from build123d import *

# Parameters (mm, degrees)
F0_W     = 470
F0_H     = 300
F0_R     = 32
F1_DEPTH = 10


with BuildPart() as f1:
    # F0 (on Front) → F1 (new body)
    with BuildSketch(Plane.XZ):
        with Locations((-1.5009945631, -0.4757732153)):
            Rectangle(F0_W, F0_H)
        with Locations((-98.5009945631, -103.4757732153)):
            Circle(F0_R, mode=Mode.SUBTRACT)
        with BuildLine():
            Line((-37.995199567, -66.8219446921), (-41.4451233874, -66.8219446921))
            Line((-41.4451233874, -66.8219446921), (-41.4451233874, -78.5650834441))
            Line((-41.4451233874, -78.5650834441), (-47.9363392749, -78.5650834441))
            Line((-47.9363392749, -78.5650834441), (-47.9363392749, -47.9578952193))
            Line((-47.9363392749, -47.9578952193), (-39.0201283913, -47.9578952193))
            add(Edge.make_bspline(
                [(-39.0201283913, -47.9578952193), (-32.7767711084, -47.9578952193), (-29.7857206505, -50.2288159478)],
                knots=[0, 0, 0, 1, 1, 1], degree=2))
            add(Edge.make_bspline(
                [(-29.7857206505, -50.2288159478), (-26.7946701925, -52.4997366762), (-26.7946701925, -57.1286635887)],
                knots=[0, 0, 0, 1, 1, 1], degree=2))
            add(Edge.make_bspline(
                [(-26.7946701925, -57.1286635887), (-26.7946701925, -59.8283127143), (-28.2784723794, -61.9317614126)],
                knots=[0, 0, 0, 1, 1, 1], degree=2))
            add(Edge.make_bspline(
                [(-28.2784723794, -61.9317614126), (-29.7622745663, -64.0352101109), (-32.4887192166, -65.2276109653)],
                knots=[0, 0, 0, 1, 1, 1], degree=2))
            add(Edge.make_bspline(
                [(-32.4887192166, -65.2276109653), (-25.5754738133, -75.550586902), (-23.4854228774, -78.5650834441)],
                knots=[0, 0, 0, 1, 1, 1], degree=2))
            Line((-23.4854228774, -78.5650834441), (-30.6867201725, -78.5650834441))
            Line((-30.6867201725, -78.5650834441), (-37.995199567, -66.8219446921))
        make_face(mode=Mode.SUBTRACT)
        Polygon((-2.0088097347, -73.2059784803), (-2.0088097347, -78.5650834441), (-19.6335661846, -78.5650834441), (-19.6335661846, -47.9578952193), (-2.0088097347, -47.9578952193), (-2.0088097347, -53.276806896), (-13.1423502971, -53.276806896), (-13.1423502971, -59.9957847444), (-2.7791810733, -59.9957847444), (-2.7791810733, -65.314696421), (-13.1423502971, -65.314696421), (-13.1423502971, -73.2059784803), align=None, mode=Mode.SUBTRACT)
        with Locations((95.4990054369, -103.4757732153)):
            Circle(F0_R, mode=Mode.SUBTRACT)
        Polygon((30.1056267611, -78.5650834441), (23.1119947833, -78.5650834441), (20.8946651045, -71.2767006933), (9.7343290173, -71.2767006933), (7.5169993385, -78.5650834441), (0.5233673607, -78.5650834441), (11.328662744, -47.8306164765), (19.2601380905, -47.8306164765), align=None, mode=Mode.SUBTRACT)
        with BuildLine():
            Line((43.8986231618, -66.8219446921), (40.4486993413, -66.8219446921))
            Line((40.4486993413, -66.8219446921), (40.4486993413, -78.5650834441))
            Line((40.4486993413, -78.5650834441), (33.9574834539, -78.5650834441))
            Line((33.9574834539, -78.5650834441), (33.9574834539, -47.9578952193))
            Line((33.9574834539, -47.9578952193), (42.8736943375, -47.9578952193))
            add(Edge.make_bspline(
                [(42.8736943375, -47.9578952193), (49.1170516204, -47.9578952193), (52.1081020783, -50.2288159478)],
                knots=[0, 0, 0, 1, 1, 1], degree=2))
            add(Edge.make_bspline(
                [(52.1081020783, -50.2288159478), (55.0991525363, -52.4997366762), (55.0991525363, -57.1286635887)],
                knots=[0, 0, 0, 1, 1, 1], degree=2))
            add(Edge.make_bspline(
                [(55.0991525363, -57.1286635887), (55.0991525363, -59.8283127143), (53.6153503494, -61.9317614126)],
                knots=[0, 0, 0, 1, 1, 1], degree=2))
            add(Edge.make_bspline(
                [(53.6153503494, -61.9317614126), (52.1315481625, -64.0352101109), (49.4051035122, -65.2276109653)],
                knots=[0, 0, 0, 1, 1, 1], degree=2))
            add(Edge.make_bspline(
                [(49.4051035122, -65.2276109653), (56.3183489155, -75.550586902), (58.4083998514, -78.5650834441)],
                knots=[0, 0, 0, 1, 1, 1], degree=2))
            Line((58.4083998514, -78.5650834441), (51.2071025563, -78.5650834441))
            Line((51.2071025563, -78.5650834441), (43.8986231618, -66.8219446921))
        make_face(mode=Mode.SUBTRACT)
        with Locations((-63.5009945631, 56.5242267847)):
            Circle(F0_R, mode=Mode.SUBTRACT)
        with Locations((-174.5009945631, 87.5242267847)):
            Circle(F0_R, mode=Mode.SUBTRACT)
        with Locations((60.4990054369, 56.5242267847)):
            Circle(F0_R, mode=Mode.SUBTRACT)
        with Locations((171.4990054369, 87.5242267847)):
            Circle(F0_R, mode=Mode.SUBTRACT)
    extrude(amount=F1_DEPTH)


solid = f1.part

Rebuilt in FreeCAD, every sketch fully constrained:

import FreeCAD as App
import Part
import Sketcher
from FreeCAD import Vector

doc = App.newDocument("Part")
params = doc.addObject("Spreadsheet::Sheet", "Params")
for row, (alias, value) in enumerate([
    ("sketch1_diameter", "64 mm"),
    ("sketch1_width", "470 mm"),
    ("sketch1_height", "300 mm"),
    ("pad1_length", "10 mm"),
], start=1):
    params.set(f"A{row}", alias)
    params.set(f"B{row}", "=" + value)
    params.setAlias(f"B{row}", alias)

body = doc.addObject("PartDesign::Body", "Body")

sketch1 = doc.addObject("Sketcher::SketchObject", "Sketch")
body.addObject(sketch1)
sketch1.AttachmentSupport = (doc.XZ_Plane, [""])
sketch1.MapMode = "FlatFace"
sketch1.addGeometry([
    Part.LineSegment(Vector(-236.500995, 149.524227, 0), Vector(-236.500995, -150.475773, 0)),
    Part.LineSegment(Vector(-236.500995, -150.475773, 0), Vector(233.499005, -150.475773, 0)),
    Part.LineSegment(Vector(233.499005, -150.475773, 0), Vector(233.499005, 149.524227, 0)),
    Part.LineSegment(Vector(233.499005, 149.524227, 0), Vector(-236.500995, 149.524227, 0)),
    Part.Circle(Vector(-98.500995, -103.475773, 0), Vector(0, 0, 1), 32),
    Part.LineSegment(Vector(-30.68672, -78.565083, 0), Vector(-37.9952, -66.821945, 0)),
    Part.LineSegment(Vector(-37.9952, -66.821945, 0), Vector(-41.445123, -66.821945, 0)),
    Part.LineSegment(Vector(-41.445123, -66.821945, 0), Vector(-41.445123, -78.565083, 0)),
    Part.LineSegment(Vector(-41.445123, -78.565083, 0), Vector(-47.936339, -78.565083, 0)),
    Part.LineSegment(Vector(-47.936339, -78.565083, 0), Vector(-47.936339, -47.957895, 0)),
    Part.LineSegment(Vector(-47.936339, -47.957895, 0), Vector(-39.020128, -47.957895, 0)),
    Part.BSplineCurve([Vector(-39.020128, -47.957895, 0), Vector(-32.776771, -47.957895, 0), Vector(-29.785721, -50.228816, 0)], [3, 3], [0, 1], False, 2, [1, 1, 1], False),
    Part.BSplineCurve([Vector(-29.785721, -50.228816, 0), Vector(-26.79467, -52.499737, 0), Vector(-26.79467, -59.828313, 0), Vector(-29.762275, -64.03521, 0), Vector(-32.488719, -65.227611, 0)], [3, 1, 1, 3], [0, 1, 1.583212735, 2.16642547], False, 2, [1, 1, 1, 1, 1], False),
    Part.BSplineCurve([Vector(-32.488719, -65.227611, 0), Vector(-25.575474, -75.550587, 0), Vector(-23.485423, -78.565083, 0)], [3, 3], [0, 1], False, 2, [1, 1, 1], False),
    Part.LineSegment(Vector(-23.485423, -78.565083, 0), Vector(-30.68672, -78.565083, 0)),
    Part.LineSegment(Vector(-13.14235, -73.205978, 0), Vector(-2.00881, -73.205978, 0)),
    Part.LineSegment(Vector(-2.00881, -73.205978, 0), Vector(-2.00881, -78.565083, 0)),
    Part.LineSegment(Vector(-2.00881, -78.565083, 0), Vector(-19.633566, -78.565083, 0)),
    Part.LineSegment(Vector(-19.633566, -78.565083, 0), Vector(-19.633566, -47.957895, 0)),
    Part.LineSegment(Vector(-19.633566, -47.957895, 0), Vector(-2.00881, -47.957895, 0)),
    Part.LineSegment(Vector(-2.00881, -47.957895, 0), Vector(-2.00881, -53.276807, 0)),
    Part.LineSegment(Vector(-2.00881, -53.276807, 0), Vector(-13.14235, -53.276807, 0)),
    Part.LineSegment(Vector(-13.14235, -53.276807, 0), Vector(-13.14235, -59.995785, 0)),
    Part.LineSegment(Vector(-13.14235, -59.995785, 0), Vector(-2.779181, -59.995785, 0)),
    Part.LineSegment(Vector(-2.779181, -59.995785, 0), Vector(-2.779181, -65.314696, 0)),
    Part.LineSegment(Vector(-2.779181, -65.314696, 0), Vector(-13.14235, -65.314696, 0)),
    Part.LineSegment(Vector(-13.14235, -65.314696, 0), Vector(-13.14235, -73.205978, 0)),
    Part.Circle(Vector(95.499005, -103.475773, 0), Vector(0, 0, 1), 32),
    Part.LineSegment(Vector(19.260138, -47.830616, 0), Vector(30.105627, -78.565083, 0)),
    Part.LineSegment(Vector(30.105627, -78.565083, 0), Vector(23.111995, -78.565083, 0)),
    Part.LineSegment(Vector(23.111995, -78.565083, 0), Vector(20.894665, -71.276701, 0)),
    Part.LineSegment(Vector(20.894665, -71.276701, 0), Vector(9.734329, -71.276701, 0)),
    Part.LineSegment(Vector(9.734329, -71.276701, 0), Vector(7.516999, -78.565083, 0)),
    Part.LineSegment(Vector(7.516999, -78.565083, 0), Vector(0.523367, -78.565083, 0)),
    Part.LineSegment(Vector(0.523367, -78.565083, 0), Vector(11.328663, -47.830616, 0)),
    Part.LineSegment(Vector(11.328663, -47.830616, 0), Vector(19.260138, -47.830616, 0)),
    Part.LineSegment(Vector(51.207103, -78.565083, 0), Vector(43.898623, -66.821945, 0)),
    Part.LineSegment(Vector(43.898623, -66.821945, 0), Vector(40.448699, -66.821945, 0)),
    Part.LineSegment(Vector(40.448699, -66.821945, 0), Vector(40.448699, -78.565083, 0)),
    Part.LineSegment(Vector(40.448699, -78.565083, 0), Vector(33.957483, -78.565083, 0)),
    Part.LineSegment(Vector(33.957483, -78.565083, 0), Vector(33.957483, -47.957895, 0)),
    Part.LineSegment(Vector(33.957483, -47.957895, 0), Vector(42.873694, -47.957895, 0)),
    Part.BSplineCurve([Vector(42.873694, -47.957895, 0), Vector(49.117052, -47.957895, 0), Vector(52.108102, -50.228816, 0)], [3, 3], [0, 1], False, 2, [1, 1, 1], False),
    Part.BSplineCurve([Vector(52.108102, -50.228816, 0), Vector(55.099153, -52.499737, 0), Vector(55.099153, -59.828313, 0), Vector(52.131548, -64.03521, 0), Vector(49.405104, -65.227611, 0)], [3, 1, 1, 3], [0, 1, 1.583212735, 2.16642547], False, 2, [1, 1, 1, 1, 1], False),
    Part.BSplineCurve([Vector(49.405104, -65.227611, 0), Vector(56.318349, -75.550587, 0), Vector(58.4084, -78.565083, 0)], [3, 3], [0, 1], False, 2, [1, 1, 1], False),
    Part.LineSegment(Vector(58.4084, -78.565083, 0), Vector(51.207103, -78.565083, 0)),
    Part.Circle(Vector(-174.500995, 87.524227, 0), Vector(0, 0, 1), 32),
    Part.Circle(Vector(-63.500995, 56.524227, 0), Vector(0, 0, 1), 32),
    Part.Circle(Vector(60.499005, 56.524227, 0), Vector(0, 0, 1), 32),
    Part.Circle(Vector(171.499005, 87.524227, 0), Vector(0, 0, 1), 32),
], False)
sketch1.addConstraint([
    Sketcher.Constraint("Block", 11),
    Sketcher.Constraint("Block", 12),
    Sketcher.Constraint("Block", 13),
    Sketcher.Constraint("Block", 42),
    Sketcher.Constraint("Block", 43),
    Sketcher.Constraint("Block", 44),
    Sketcher.Constraint("Coincident", 0, 2, 1, 1),
    Sketcher.Constraint("Coincident", 1, 2, 2, 1),
    Sketcher.Constraint("Coincident", 2, 2, 3, 1),
    Sketcher.Constraint("Coincident", 3, 2, 0, 1),
    Sketcher.Constraint("Coincident", 5, 2, 6, 1),
    Sketcher.Constraint("Coincident", 6, 2, 7, 1),
    Sketcher.Constraint("Coincident", 7, 2, 8, 1),
    Sketcher.Constraint("Coincident", 8, 2, 9, 1),
    Sketcher.Constraint("Coincident", 9, 2, 10, 1),
    Sketcher.Constraint("Coincident", 10, 2, 11, 1),
    Sketcher.Constraint("Coincident", 13, 2, 14, 1),
    Sketcher.Constraint("Coincident", 14, 2, 5, 1),
    Sketcher.Constraint("Coincident", 15, 2, 16, 1),
    Sketcher.Constraint("Coincident", 16, 2, 17, 1),
    Sketcher.Constraint("Coincident", 17, 2, 18, 1),
    Sketcher.Constraint("Coincident", 18, 2, 19, 1),
    Sketcher.Constraint("Coincident", 19, 2, 20, 1),
    Sketcher.Constraint("Coincident", 20, 2, 21, 1),
    Sketcher.Constraint("Coincident", 21, 2, 22, 1),
    Sketcher.Constraint("Coincident", 22, 2, 23, 1),
    Sketcher.Constraint("Coincident", 23, 2, 24, 1),
    Sketcher.Constraint("Coincident", 24, 2, 25, 1),
    Sketcher.Constraint("Coincident", 25, 2, 26, 1),
    Sketcher.Constraint("Coincident", 26, 2, 15, 1),
    Sketcher.Constraint("Coincident", 28, 2, 29, 1),
    Sketcher.Constraint("Coincident", 29, 2, 30, 1),
    Sketcher.Constraint("Coincident", 30, 2, 31, 1),
    Sketcher.Constraint("Coincident", 31, 2, 32, 1),
    Sketcher.Constraint("Coincident", 32, 2, 33, 1),
    Sketcher.Constraint("Coincident", 33, 2, 34, 1),
    Sketcher.Constraint("Coincident", 34, 2, 35, 1),
    Sketcher.Constraint("Coincident", 35, 2, 28, 1),
    Sketcher.Constraint("Coincident", 36, 2, 37, 1),
    Sketcher.Constraint("Coincident", 37, 2, 38, 1),
    Sketcher.Constraint("Coincident", 38, 2, 39, 1),
    Sketcher.Constraint("Coincident", 39, 2, 40, 1),
    Sketcher.Constraint("Coincident", 40, 2, 41, 1),
    Sketcher.Constraint("Coincident", 41, 2, 42, 1),
    Sketcher.Constraint("Coincident", 44, 2, 45, 1),
    Sketcher.Constraint("Coincident", 45, 2, 36, 1),
    Sketcher.Constraint("Vertical", 0),
    Sketcher.Constraint("Horizontal", 1),
    Sketcher.Constraint("Vertical", 2),
    Sketcher.Constraint("Horizontal", 3),
    Sketcher.Constraint("Horizontal", 6),
    Sketcher.Constraint("Vertical", 7),
    Sketcher.Constraint("Horizontal", 8),
    Sketcher.Constraint("Vertical", 9),
    Sketcher.Constraint("Horizontal", 10),
    Sketcher.Constraint("Horizontal", 14),
    Sketcher.Constraint("Horizontal", 15),
    Sketcher.Constraint("Vertical", 16),
    Sketcher.Constraint("Horizontal", 17),
    Sketcher.Constraint("Vertical", 18),
    Sketcher.Constraint("Horizontal", 19),
    Sketcher.Constraint("Vertical", 20),
    Sketcher.Constraint("Horizontal", 21),
    Sketcher.Constraint("Vertical", 22),
    Sketcher.Constraint("Horizontal", 23),
    Sketcher.Constraint("Vertical", 24),
    Sketcher.Constraint("Horizontal", 25),
    Sketcher.Constraint("Vertical", 26),
    Sketcher.Constraint("Horizontal", 29),
    Sketcher.Constraint("Horizontal", 31),
    Sketcher.Constraint("Horizontal", 33),
    Sketcher.Constraint("Horizontal", 35),
    Sketcher.Constraint("Horizontal", 37),
    Sketcher.Constraint("Vertical", 38),
    Sketcher.Constraint("Horizontal", 39),
    Sketcher.Constraint("Vertical", 40),
    Sketcher.Constraint("Horizontal", 41),
    Sketcher.Constraint("Horizontal", 45),
    Sketcher.Constraint("Equal", 4, 27),
    Sketcher.Constraint("Equal", 27, 46),
    Sketcher.Constraint("Equal", 46, 47),
    Sketcher.Constraint("Equal", 47, 48),
    Sketcher.Constraint("Equal", 48, 49),
    Sketcher.Constraint("Parallel", 5, 36),
    Sketcher.Constraint("Horizontal", 4, 3, 27, 3),
    Sketcher.Constraint("Horizontal", 47, 3, 48, 3),
    Sketcher.Constraint("Horizontal", 46, 3, 49, 3),
    Sketcher.Constraint("Horizontal", 8, 2, 14, 2),
    Sketcher.Constraint("Horizontal", 14, 2, 16, 2),
    Sketcher.Constraint("Horizontal", 10, 2, 18, 2),
    Sketcher.Constraint("Horizontal", 17, 2, 28, 2),
    Sketcher.Constraint("Horizontal", 29, 2, 32, 2),
    Sketcher.Constraint("Horizontal", 6, 2, 36, 2),
    Sketcher.Constraint("Horizontal", 33, 2, 38, 2),
    Sketcher.Constraint("Vertical", 16, 2, 19, 2),
    Sketcher.Constraint("Vertical", 22, 2, 25, 2),
    Sketcher.Constraint("Equal", 29, 33),
    Sketcher.Constraint("Equal", 6, 37),
    Sketcher.Constraint("Equal", 8, 39),
    Sketcher.Constraint("Equal", 10, 41),
    Sketcher.Constraint("Equal", 20, 24),
    Sketcher.Constraint("Equal", 30, 32),
    Sketcher.Constraint("Diameter", 4, 64.0),
    Sketcher.Constraint("DistanceX", 1, 1, 1, 2, 470.0),
    Sketcher.Constraint("DistanceY", 0, 2, 0, 1, 300.0),
    Sketcher.Constraint("DistanceX", 4, 3, 27, 3, 194.0),
    Sketcher.Constraint("DistanceX", 46, 3, 4, 3, 76.0),
    Sketcher.Constraint("DistanceY", 4, 3, 46, 3, 191.0),
    Sketcher.Constraint("DistanceX", 46, 3, 47, 3, 111.0),
    Sketcher.Constraint("DistanceY", 47, 3, 46, 3, 31.0),
    Sketcher.Constraint("DistanceX", 47, 3, 48, 3, 124.0),
    Sketcher.Constraint("DistanceX", 48, 3, 49, 3, 111.0),
    Sketcher.Constraint("DistanceX", 0, 2, 4, 3, 138.0),
    Sketcher.Constraint("DistanceY", 0, 2, 4, 3, 47.0),
    Sketcher.Constraint("DistanceX", -1, 1, 32, 2, 7.516999),
    Sketcher.Constraint("DistanceX", 10, 1, 10, 2, 8.916211),
    Sketcher.Constraint("DistanceX", 15, 1, 15, 2, 11.133541),
    Sketcher.Constraint("DistanceX", 23, 1, 23, 2, 10.363169),
    Sketcher.Constraint("DistanceX", 29, 2, 29, 1, 6.993632),
    Sketcher.Constraint("DistanceY", 7, 2, 7, 1, 11.743139),
    Sketcher.Constraint("DistanceY", 20, 2, 20, 1, 5.318912),
    Sketcher.Constraint("DistanceX", 5, 2, -1, 1, 37.9952),
    Sketcher.Constraint("DistanceY", 30, 2, -1, 1, 71.276701),
    Sketcher.Constraint("DistanceX", -1, 1, 37, 2, 40.448699),
    Sketcher.Constraint("DistanceY", 28, 2, 23, 2, 18.569299),
    Sketcher.Constraint("Distance", 34, 32.578549),
    Sketcher.Constraint("DistanceX", 14, 2, 14, 1, 7.201297),
    Sketcher.Constraint("DistanceX", 17, 2, 17, 1, 17.624756),
    Sketcher.Constraint("DistanceX", 31, 2, 31, 1, 11.160336),
    Sketcher.Constraint("DistanceX", 35, 1, 35, 2, 7.931475),
    Sketcher.Constraint("DistanceY", 16, 2, 16, 1, 5.359105),
    Sketcher.Constraint("DistanceX", 15, 2, -1, 1, 2.00881),
    Sketcher.Constraint("DistanceX", -1, 1, 31, 2, 9.734329),
    Sketcher.Constraint("DistanceX", -1, 1, 35, 2, 19.260138),
    Sketcher.Constraint("DistanceY", 4, 3, 5, 2, 36.653829),
    Sketcher.Constraint("DistanceX", 4, 3, 6, 2, 57.055871),
])
sketch1.setExpression("Constraints[102]", "Params.sketch1_diameter")
sketch1.setExpression("Constraints[103]", "Params.sketch1_width")
sketch1.setExpression("Constraints[104]", "Params.sketch1_height")
pad1 = doc.addObject("PartDesign::Pad", "Pad")
body.addObject(pad1)
pad1.Profile = sketch1
pad1.setExpression("Length", "Params.pad1_length")

doc.recompute()
